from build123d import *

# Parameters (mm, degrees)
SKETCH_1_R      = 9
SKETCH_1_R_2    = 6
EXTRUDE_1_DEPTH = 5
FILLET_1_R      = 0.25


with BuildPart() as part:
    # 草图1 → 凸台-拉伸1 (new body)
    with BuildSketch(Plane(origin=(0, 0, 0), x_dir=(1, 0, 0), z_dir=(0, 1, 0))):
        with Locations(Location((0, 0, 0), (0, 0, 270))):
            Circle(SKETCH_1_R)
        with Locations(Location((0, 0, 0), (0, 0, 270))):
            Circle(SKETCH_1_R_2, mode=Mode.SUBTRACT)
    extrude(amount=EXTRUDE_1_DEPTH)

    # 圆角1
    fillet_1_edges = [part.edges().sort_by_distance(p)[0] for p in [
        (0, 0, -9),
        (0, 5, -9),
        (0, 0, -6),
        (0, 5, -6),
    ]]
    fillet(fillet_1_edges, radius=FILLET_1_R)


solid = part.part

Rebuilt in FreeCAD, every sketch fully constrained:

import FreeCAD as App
import Part
import Sketcher

V = App.Vector
Q = App.Units.Quantity


def edges_at(feature, points):
    """Names of the edges that pass closest to the given points."""
    edges = feature.Shape.Edges
    near = lambda p: min(range(len(edges)), key=lambda i: edges[i].distToShape(Part.Vertex(*p))[0])
    return sorted({f"Edge{near(p) + 1}" for p in points})

doc = App.newDocument("Part")
body = doc.addObject("PartDesign::Body", "Body")

# Sketch on XZ plane
sketch1 = body.newObject("Sketcher::SketchObject", "Sketch")
sketch1.AttachmentSupport = (doc.getObject("XZ_Plane"), [""])
sketch1.MapMode = "FlatFace"
sketch1.addGeometry(Part.Circle(V(0, 0, 0), V(0, 0, 1), 9), False)
sketch1.addGeometry(Part.Circle(V(0, 0, 0), V(0, 0, 1), 6), False)
sketch1.addConstraint(Sketcher.Constraint("Coincident", 0, 3, -1, 1))
sketch1.addConstraint(Sketcher.Constraint("Coincident", 1, 3, -1, 1))
sketch1.addConstraint(Sketcher.Constraint("Diameter", 0, Q("18 mm")))
sketch1.addConstraint(Sketcher.Constraint("Diameter", 1, Q("12 mm")))
pad1 = body.newObject("PartDesign::Pad", "Pad")
pad1.Profile = sketch1
pad1.Length = 5
pad1.Reversed = True
doc.recompute()

fillet = body.newObject("PartDesign::Fillet", "Fillet")
fillet.Base = (pad1, edges_at(pad1, [
    (0, 0, -9),
    (0, 5, -9),
    (0, 0, -6),
    (0, 5, -6),
]))
fillet.Radius = 0.25

doc.recompute()
